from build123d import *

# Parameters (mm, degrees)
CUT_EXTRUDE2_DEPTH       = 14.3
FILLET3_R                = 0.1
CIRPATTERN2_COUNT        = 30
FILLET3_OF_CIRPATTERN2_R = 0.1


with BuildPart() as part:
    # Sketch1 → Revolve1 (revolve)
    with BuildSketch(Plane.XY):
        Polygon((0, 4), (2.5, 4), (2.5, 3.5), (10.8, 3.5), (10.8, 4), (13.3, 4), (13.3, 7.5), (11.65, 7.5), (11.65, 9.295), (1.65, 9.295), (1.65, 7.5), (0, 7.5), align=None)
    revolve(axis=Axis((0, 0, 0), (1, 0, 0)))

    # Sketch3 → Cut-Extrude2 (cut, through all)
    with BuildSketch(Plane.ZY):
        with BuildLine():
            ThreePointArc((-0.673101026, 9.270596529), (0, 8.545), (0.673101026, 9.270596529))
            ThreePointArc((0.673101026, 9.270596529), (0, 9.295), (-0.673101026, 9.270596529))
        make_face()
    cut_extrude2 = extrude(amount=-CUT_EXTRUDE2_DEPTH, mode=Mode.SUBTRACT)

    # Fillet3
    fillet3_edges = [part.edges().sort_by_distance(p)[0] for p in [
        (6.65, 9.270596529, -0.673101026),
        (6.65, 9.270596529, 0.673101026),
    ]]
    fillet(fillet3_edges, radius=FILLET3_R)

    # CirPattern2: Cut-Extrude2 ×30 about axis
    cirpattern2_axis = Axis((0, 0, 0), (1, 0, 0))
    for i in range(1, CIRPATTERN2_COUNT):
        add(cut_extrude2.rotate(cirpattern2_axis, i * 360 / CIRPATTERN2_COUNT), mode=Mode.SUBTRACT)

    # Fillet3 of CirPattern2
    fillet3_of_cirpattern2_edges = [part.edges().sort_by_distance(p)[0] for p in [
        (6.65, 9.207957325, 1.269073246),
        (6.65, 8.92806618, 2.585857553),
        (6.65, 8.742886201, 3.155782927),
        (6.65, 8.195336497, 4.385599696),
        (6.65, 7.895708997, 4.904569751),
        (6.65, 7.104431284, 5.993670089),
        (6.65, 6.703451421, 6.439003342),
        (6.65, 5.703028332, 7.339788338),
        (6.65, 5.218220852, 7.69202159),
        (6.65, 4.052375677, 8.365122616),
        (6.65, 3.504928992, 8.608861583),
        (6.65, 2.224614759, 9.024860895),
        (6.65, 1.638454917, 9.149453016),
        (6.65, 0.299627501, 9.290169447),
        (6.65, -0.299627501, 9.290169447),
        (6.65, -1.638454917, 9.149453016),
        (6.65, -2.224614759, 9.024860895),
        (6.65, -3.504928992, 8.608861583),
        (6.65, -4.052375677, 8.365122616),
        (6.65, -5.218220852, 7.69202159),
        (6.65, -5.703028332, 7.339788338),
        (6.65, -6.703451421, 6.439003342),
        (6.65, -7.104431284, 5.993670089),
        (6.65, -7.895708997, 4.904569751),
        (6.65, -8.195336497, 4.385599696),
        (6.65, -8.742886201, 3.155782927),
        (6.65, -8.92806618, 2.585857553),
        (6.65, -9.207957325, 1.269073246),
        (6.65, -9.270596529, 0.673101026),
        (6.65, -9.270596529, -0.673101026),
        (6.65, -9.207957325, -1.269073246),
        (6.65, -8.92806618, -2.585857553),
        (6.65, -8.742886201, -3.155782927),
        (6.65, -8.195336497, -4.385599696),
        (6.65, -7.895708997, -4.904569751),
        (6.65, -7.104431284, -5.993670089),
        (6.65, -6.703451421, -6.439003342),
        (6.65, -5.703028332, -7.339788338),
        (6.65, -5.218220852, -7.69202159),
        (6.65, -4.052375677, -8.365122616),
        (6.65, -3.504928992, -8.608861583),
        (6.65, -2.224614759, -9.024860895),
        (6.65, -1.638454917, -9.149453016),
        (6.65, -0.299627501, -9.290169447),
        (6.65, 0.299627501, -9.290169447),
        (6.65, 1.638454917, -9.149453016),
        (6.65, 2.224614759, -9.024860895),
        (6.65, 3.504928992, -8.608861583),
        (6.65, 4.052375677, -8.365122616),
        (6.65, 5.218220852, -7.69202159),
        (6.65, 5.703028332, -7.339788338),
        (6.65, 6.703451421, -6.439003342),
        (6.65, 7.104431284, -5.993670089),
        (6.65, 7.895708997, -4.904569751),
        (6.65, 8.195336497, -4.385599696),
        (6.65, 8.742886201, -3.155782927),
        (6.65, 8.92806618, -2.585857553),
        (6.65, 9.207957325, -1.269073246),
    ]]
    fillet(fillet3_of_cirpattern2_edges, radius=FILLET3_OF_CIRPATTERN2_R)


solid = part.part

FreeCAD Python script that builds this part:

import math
import FreeCAD as App
import Part
import Sketcher

V = App.Vector


def edges_at(feature, points):
    """Names of the edges that pass closest to the given points."""
    edges = feature.Shape.Edges
    near = lambda p: min(range(len(edges)), key=lambda i: edges[i].distToShape(Part.Vertex(*p))[0])
    return sorted({f"Edge{near(p) + 1}" for p in points})


def add_polygon(sketch, points):
    """Adds a closed chain of lines whose ends are joined by coincident constraints."""
    first, n = sketch.GeometryCount, len(points)
    for a, b in zip(points, points[1:] + points[:1]):
        sketch.addGeometry(Part.LineSegment(App.Vector(*a, 0), App.Vector(*b, 0)), False)
    for i in range(n):
        sketch.addConstraint(Sketcher.Constraint("Coincident", first + i, 2, first + (i + 1) % n, 1))

doc = App.newDocument("Part")
body = doc.addObject("PartDesign::Body", "Body")

sketch1 = body.newObject("Sketcher::SketchObject", "Sketch")
sketch1.AttachmentSupport = (doc.getObject("XY_Plane"), [""])
sketch1.MapMode = "FlatFace"
add_polygon(sketch1, [(0, 4), (2.5, 4), (2.5, 3.5), (10.8, 3.5), (10.8, 4), (13.3, 4), (13.3, 7.5), (11.7, 7.5), (11.7, 9.3), (1.6, 9.3), (1.6, 7.5), (0, 7.5)])
sketch1.addConstraint(Sketcher.Constraint("Horizontal", 0))
sketch1.addConstraint(Sketcher.Constraint("Vertical", 1))
sketch1.addConstraint(Sketcher.Constraint("Horizontal", 2))
sketch1.addConstraint(Sketcher.Constraint("Vertical", 3))
sketch1.addConstraint(Sketcher.Constraint("Horizontal", 4))
sketch1.addConstraint(Sketcher.Constraint("Vertical", 5))
sketch1.addConstraint(Sketcher.Constraint("Horizontal", 6))
sketch1.addConstraint(Sketcher.Constraint("Vertical", 7))
sketch1.addConstraint(Sketcher.Constraint("Horizontal", 8))
sketch1.addConstraint(Sketcher.Constraint("Vertical", 9))
sketch1.addConstraint(Sketcher.Constraint("Horizontal", 10))
sketch1.addConstraint(Sketcher.Constraint("Vertical", 11))
sketch1.addConstraint(Sketcher.Constraint("PointOnObject", 10, 2, -2))
sketch1.addConstraint(Sketcher.Constraint("Horizontal", 0, 2, 3, 2))
sketch1.addConstraint(Sketcher.Constraint("Horizontal", 6, 2, 9, 2))
sketch1.addConstraint(Sketcher.Constraint("Equal", 0, 4))
sketch1.addConstraint(Sketcher.Constraint("Equal", 6, 10))
sketch1.addConstraint(Sketcher.Constraint("DistanceX", 8, 2, 8, 1, 10.0))
sketch1.addConstraint(Sketcher.Constraint("DistanceX", 0, 1, 0, 2, 2.5))
sketch1.addConstraint(Sketcher.Constraint("DistanceX", 2, 1, 2, 2, 8.3))
sketch1.addConstraint(Sketcher.Constraint("DistanceY", 1, 2, 1, 1, 0.5))
sketch1.addConstraint(Sketcher.Constraint("DistanceY", 5, 1, 5, 2, 3.5))
sketch1.addConstraint(Sketcher.Constraint("DistanceY", -1, 1, 0, 2, 4.0))
sketch1.addConstraint(Sketcher.Constraint("DistanceY", 7, 1, 7, 2, 1.795))
revolution = body.newObject("PartDesign::Revolution", "Revolution")
revolution.Profile = sketch1
revolution.ReferenceAxis = (sketch1, ["H_Axis"])
revolution.Angle = 360

sketch2 = body.newObject("Sketcher::SketchObject", "Sketch001")
sketch2.AttachmentSupport = (doc.getObject("YZ_Plane"), [""])
sketch2.MapMode = "FlatFace"
sketch2.addGeometry(Part.ArcOfCircle(Part.Circle(V(9.2, 0, 0), V(0, 0, 1), 0.7), math.radians(86), math.radians(274)), False)
sketch2.addGeometry(Part.ArcOfCircle(Part.Circle(V(0, 0, 0), V(0, 0, 1), 9.3), math.radians(-4.15), math.radians(4.15)), False)
sketch2.addConstraint(Sketcher.Constraint("Coincident", 0, 1, 1, 2))
sketch2.addConstraint(Sketcher.Constraint("Coincident", 1, 1, 0, 2))
sketch2.addConstraint(Sketcher.Constraint("Coincident", 1, 3, -1, 1))
sketch2.addConstraint(Sketcher.Constraint("PointOnObject", 0, 3, -1))
sketch2.addConstraint(Sketcher.Constraint("Radius", 0, 0.675))
sketch2.addConstraint(Sketcher.Constraint("Radius", 1, 9.295))
sketch2.addConstraint(Sketcher.Constraint("DistanceX", -1, 1, 0, 3, 9.22))
pocket1 = body.newObject("PartDesign::Pocket", "Pocket")
pocket1.Profile = sketch2
pocket1.Type = "ThroughAll"
pocket1.Reversed = True
doc.recompute()

fillet = body.newObject("PartDesign::Fillet", "Fillet")
fillet.Base = (pocket1, edges_at(pocket1, [(6.65, 9.271, -0.673), (6.65, 9.271, 0.673)]))
fillet.Radius = 0.1
doc.recompute()

polarpattern = body.newObject("PartDesign::PolarPattern", "PolarPattern")
polarpattern.Originals = [pocket1]
polarpattern.Axis = (doc.getObject("X_Axis"), [""])
polarpattern.Angle = 360
polarpattern.Occurrences = 30
body.Tip = polarpattern
doc.recompute()

fillet2 = body.newObject("PartDesign::Fillet", "Fillet001")
fillet2.Base = (polarpattern, edges_at(polarpattern, [
    (6.65, 9.208, 1.269),
    (6.65, 8.928, 2.586),
    (6.65, 8.743, 3.156),
    (6.65, 8.195, 4.386),
    (6.65, 7.896, 4.905),
    (6.65, 7.104, 5.994),
    (6.65, 6.703, 6.439),
    (6.65, 5.703, 7.34),
    (6.65, 5.218, 7.692),
    (6.65, 4.052, 8.365),
    (6.65, 3.505, 8.609),
    (6.65, 2.225, 9.025),
    (6.65, 1.638, 9.149),
    (6.65, 0.3, 9.29),
    (6.65, -0.3, 9.29),
    (6.65, -1.638, 9.149),
    (6.65, -2.225, 9.025),
    (6.65, -3.505, 8.609),
    (6.65, -4.052, 8.365),
    (6.65, -5.218, 7.692),
    (6.65, -5.703, 7.34),
    (6.65, -6.703, 6.439),
    (6.65, -7.104, 5.994),
    (6.65, -7.896, 4.905),
    (6.65, -8.195, 4.386),
    (6.65, -8.743, 3.156),
    (6.65, -8.928, 2.586),
    (6.65, -9.208, 1.269),
    (6.65, -9.271, 0.673),
    (6.65, -9.271, -0.673),
    (6.65, -9.208, -1.269),
    (6.65, -8.928, -2.586),
    (6.65, -8.743, -3.156),
    (6.65, -8.195, -4.386),
    (6.65, -7.896, -4.905),
    (6.65, -7.104, -5.994),
    (6.65, -6.703, -6.439),
    (6.65, -5.703, -7.34),
    (6.65, -5.218, -7.692),
    (6.65, -4.052, -8.365),
    (6.65, -3.505, -8.609),
    (6.65, -2.225, -9.025),
    (6.65, -1.638, -9.149),
    (6.65, -0.3, -9.29),
    (6.65, 0.3, -9.29),
    (6.65, 1.638, -9.149),
    (6.65, 2.225, -9.025),
    (6.65, 3.505, -8.609),
    (6.65, 4.052, -8.365),
    (6.65, 5.218, -7.692),
    (6.65, 5.703, -7.34),
    (6.65, 6.703, -6.439),
    (6.65, 7.104, -5.994),
    (6.65, 7.896, -4.905),
    (6.65, 8.195, -4.386),
    (6.65, 8.743, -3.156),
    (6.65, 8.928, -2.586),
    (6.65, 9.208, -1.269),
]))
fillet2.Radius = 0.1

doc.recompute()
